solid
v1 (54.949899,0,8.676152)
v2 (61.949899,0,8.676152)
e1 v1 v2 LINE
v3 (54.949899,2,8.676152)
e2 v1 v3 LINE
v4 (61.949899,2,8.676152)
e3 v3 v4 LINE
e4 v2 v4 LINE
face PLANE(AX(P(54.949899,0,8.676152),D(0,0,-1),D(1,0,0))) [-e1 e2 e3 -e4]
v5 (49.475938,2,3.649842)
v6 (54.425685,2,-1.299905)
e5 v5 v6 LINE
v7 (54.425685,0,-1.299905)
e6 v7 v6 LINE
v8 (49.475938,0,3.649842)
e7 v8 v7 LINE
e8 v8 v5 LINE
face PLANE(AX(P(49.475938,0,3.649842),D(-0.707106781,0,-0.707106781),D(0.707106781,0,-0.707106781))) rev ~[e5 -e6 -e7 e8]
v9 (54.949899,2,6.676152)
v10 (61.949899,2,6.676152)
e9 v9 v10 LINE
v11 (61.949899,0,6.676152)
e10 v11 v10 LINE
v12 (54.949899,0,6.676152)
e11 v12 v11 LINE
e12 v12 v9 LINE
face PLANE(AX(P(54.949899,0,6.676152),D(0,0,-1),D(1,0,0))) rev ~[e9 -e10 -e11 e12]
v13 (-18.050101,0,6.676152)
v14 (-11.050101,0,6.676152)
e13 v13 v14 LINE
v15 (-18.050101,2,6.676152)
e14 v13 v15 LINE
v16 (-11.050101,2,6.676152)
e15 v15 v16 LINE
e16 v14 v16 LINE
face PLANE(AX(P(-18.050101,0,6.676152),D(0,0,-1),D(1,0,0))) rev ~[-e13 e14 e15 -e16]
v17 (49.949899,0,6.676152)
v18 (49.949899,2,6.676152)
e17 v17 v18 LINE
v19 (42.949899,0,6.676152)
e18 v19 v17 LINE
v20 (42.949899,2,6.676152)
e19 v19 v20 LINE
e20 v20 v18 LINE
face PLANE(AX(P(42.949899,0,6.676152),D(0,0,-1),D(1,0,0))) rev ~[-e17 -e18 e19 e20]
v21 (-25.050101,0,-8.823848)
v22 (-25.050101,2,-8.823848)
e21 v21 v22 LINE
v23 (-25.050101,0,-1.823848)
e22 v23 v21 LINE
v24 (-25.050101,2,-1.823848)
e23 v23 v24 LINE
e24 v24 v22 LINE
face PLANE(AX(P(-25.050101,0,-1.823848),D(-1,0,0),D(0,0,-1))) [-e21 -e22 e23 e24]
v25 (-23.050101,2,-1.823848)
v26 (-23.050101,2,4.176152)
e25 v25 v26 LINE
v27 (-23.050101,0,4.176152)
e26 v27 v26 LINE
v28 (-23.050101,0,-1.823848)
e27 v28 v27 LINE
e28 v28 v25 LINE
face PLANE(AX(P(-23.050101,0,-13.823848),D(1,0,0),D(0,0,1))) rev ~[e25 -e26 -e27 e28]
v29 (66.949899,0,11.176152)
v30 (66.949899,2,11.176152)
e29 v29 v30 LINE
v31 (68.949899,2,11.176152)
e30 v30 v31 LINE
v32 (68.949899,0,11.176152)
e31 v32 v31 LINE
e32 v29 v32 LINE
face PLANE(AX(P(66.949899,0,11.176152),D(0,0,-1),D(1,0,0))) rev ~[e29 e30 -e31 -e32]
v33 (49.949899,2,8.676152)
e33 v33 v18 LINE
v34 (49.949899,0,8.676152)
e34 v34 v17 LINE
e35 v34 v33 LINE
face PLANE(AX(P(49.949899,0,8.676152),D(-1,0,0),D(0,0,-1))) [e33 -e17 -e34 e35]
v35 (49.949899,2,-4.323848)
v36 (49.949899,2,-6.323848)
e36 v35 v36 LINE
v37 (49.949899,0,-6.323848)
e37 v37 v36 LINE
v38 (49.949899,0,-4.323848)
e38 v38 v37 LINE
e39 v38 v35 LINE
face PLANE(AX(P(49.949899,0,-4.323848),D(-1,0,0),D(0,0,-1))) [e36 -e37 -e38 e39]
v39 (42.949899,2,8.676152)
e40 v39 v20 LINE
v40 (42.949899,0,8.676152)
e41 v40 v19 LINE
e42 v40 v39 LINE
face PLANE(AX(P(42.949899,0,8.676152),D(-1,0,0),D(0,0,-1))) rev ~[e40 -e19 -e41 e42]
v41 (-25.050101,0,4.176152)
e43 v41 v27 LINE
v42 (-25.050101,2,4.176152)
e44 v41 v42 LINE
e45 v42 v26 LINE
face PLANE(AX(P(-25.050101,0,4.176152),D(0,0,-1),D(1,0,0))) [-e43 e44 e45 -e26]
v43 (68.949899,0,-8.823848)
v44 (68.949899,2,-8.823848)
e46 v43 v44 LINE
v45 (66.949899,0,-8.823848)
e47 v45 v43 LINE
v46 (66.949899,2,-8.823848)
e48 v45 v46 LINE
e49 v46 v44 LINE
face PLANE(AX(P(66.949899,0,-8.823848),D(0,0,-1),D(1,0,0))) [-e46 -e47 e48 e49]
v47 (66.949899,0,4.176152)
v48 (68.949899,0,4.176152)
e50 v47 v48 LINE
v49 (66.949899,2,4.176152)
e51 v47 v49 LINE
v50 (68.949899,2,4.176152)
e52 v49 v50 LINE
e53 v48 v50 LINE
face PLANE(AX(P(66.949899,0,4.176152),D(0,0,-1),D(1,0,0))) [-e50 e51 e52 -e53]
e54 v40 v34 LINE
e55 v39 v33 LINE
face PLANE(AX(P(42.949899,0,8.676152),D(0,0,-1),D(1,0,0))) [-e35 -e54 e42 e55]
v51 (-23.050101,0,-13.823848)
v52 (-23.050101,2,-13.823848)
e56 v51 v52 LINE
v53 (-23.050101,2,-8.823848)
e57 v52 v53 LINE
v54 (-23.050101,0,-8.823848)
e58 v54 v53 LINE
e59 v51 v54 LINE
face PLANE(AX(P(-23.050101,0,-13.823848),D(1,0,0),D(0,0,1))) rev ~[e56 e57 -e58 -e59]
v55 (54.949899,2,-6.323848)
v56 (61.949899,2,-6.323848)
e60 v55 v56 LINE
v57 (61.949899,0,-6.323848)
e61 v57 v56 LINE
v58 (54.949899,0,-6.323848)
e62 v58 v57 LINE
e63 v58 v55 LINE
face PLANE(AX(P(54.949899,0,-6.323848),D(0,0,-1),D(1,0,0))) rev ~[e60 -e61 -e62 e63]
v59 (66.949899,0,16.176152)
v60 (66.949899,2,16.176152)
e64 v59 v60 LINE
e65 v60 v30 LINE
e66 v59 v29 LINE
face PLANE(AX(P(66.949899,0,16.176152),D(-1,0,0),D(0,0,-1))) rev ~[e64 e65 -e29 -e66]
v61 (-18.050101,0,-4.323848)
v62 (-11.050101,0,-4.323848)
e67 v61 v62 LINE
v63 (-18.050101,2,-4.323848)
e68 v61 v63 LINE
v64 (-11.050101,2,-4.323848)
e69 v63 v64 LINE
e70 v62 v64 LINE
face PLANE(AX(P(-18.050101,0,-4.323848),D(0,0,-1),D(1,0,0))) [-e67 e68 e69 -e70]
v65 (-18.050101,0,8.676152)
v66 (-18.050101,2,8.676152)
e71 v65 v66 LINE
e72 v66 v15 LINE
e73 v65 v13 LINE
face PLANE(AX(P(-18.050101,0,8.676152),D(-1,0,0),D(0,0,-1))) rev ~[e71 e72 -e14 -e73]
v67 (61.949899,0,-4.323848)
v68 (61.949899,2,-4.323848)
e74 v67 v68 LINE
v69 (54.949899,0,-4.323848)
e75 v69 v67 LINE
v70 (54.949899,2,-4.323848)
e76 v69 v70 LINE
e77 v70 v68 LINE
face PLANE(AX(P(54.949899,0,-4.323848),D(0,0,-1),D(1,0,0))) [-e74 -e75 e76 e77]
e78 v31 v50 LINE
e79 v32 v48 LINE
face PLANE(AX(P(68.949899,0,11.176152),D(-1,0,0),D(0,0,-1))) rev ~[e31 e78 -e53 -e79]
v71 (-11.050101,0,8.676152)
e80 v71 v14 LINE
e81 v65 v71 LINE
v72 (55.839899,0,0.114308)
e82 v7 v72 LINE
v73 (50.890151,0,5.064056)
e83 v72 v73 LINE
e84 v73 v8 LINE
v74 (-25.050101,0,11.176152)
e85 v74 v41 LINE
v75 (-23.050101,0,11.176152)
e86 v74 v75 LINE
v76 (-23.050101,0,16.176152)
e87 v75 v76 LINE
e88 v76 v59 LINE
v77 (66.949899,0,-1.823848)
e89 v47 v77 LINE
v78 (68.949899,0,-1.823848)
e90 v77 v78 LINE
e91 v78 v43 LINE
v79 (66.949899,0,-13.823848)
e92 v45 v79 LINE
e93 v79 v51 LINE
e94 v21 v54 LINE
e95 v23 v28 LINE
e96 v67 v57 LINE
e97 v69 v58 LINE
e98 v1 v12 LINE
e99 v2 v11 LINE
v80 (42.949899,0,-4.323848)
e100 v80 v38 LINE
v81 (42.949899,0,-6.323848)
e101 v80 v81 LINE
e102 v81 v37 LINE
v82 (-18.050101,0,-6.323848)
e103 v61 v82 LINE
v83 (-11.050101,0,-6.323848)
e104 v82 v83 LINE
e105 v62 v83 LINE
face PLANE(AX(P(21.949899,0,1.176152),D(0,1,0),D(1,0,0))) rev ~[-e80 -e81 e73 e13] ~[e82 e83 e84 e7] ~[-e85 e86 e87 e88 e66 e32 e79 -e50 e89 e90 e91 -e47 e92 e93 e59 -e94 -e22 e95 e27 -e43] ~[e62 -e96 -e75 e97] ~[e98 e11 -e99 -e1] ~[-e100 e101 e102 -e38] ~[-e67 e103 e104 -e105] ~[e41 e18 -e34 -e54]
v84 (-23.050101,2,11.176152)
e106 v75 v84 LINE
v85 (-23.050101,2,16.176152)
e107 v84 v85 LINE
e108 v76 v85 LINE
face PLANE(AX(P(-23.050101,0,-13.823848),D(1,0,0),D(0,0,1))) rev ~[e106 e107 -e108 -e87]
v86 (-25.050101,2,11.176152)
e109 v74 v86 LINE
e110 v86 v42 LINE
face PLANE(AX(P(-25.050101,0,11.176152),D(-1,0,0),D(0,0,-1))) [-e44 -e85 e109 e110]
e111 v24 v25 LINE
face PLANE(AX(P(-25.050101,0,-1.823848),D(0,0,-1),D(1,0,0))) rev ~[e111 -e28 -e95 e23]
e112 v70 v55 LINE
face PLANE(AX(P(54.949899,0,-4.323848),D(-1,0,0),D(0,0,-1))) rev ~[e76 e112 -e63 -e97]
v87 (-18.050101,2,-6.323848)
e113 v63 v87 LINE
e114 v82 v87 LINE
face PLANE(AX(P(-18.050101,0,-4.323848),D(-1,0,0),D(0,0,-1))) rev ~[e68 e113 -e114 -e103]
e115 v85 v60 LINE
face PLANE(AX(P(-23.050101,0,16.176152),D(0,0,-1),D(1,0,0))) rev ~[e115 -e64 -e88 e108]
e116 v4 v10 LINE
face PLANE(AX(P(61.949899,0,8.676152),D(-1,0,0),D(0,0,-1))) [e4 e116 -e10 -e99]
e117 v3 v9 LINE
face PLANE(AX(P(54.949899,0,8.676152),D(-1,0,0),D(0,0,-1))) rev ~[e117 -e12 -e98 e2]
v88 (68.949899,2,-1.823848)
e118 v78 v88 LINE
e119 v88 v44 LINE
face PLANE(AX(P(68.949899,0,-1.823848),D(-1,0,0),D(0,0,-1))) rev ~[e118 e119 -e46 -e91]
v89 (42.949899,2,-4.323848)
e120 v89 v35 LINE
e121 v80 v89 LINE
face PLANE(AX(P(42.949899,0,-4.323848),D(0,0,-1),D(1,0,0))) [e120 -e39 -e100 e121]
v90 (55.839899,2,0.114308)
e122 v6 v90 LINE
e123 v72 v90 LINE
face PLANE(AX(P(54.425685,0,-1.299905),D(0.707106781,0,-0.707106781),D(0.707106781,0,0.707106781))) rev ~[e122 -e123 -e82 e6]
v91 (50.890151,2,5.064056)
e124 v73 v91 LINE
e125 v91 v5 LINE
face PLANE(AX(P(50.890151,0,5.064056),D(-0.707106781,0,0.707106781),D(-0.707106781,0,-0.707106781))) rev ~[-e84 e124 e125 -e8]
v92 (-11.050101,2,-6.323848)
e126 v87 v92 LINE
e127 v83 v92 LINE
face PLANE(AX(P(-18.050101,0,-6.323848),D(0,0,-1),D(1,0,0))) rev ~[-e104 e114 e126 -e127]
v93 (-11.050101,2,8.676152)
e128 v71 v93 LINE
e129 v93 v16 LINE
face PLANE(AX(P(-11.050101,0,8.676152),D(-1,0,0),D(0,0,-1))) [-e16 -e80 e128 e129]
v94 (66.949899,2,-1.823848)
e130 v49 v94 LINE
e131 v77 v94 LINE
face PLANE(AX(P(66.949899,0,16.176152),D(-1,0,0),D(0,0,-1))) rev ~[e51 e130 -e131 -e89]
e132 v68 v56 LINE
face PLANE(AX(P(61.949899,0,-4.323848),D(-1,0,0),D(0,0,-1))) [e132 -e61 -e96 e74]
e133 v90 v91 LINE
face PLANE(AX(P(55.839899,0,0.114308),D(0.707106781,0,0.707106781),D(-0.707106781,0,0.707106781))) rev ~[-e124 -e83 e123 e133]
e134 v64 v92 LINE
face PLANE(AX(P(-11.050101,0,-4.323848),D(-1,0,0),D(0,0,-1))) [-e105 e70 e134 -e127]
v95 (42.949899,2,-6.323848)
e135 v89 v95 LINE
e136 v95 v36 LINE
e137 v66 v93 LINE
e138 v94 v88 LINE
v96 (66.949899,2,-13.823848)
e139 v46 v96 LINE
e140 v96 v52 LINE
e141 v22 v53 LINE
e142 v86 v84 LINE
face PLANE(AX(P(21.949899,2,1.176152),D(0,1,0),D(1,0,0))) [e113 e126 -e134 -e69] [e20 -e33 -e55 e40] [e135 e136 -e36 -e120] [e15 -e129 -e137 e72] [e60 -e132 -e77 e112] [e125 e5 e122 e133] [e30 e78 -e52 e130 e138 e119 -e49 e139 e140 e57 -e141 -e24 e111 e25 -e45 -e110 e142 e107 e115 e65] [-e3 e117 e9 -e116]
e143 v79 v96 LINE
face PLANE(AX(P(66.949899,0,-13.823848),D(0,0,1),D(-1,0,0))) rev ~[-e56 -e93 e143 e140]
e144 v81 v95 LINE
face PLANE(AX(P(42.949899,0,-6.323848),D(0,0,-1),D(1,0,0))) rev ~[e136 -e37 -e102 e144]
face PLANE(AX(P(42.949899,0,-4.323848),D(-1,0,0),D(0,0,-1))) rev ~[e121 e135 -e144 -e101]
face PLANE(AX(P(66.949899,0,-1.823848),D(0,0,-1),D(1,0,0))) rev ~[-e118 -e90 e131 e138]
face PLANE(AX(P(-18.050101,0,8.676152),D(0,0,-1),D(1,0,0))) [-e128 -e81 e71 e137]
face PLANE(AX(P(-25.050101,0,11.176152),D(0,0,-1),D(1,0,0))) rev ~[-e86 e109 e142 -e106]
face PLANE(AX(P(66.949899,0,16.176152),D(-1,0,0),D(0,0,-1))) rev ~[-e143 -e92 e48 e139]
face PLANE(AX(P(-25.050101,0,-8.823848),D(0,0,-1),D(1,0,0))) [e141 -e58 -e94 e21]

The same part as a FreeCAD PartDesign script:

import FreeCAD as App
import Part
import Sketcher

V = App.Vector
Q = App.Units.Quantity


def add_polygon(sketch, points):
    """Adds a closed chain of lines whose ends are joined by coincident constraints."""
    first, n = sketch.GeometryCount, len(points)
    for a, b in zip(points, points[1:] + points[:1]):
        sketch.addGeometry(Part.LineSegment(App.Vector(*a, 0), App.Vector(*b, 0)), False)
    for i in range(n):
        sketch.addConstraint(Sketcher.Constraint("Coincident", first + i, 2, first + (i + 1) % n, 1))

doc = App.newDocument("Part")
body = doc.addObject("PartDesign::Body", "Body")

sketch1 = doc.addObject("Sketcher::SketchObject", "Sketch")
body.addObject(sketch1)
sketch1.AttachmentSupport = (doc.XZ_Plane, [""])
sketch1.MapMode = "FlatFace"
add_polygon(sketch1, [(-25.050101, -8.823848), (-25.050101, -1.823848), (-23.050101, -1.823848), (-23.050101, 4.176152), (-25.050101, 4.176152), (-25.050101, 11.176152), (-23.050101, 11.176152), (-23.050101, 16.176152), (66.949899, 16.176152), (66.949899, 11.176152), (68.949899, 11.176152), (68.949899, 4.176152), (66.949899, 4.176152), (66.949899, -1.823848), (68.949899, -1.823848), (68.949899, -8.823848), (66.949899, -8.823848), (66.949899, -13.823848), (-23.050101, -13.823848), (-23.050101, -8.823848)])
add_polygon(sketch1, [(54.949899, -4.323848), (54.949899, -6.323848), (61.949899, -6.323848), (61.949899, -4.323848)])
add_polygon(sketch1, [(-11.050101, 8.676152), (-18.050101, 8.676152), (-18.050101, 6.676152), (-11.050101, 6.676152)])
add_polygon(sketch1, [(49.949899, 8.676152), (42.949899, 8.676152), (42.949899, 6.676152), (49.949899, 6.676152)])
add_polygon(sketch1, [(61.949899, 8.676152), (54.949899, 8.676152), (54.949899, 6.676152), (61.949899, 6.676152)])
add_polygon(sketch1, [(49.475938, 3.649842), (54.425685, -1.299905), (55.839899, 0.114308), (50.890151, 5.064056)])
add_polygon(sketch1, [(-11.050101, -4.323848), (-18.050101, -4.323848), (-18.050101, -6.323848), (-11.050101, -6.323848)])
add_polygon(sketch1, [(49.949899, -4.323848), (42.949899, -4.323848), (42.949899, -6.323848), (49.949899, -6.323848)])
sketch1.addConstraint([
    Sketcher.Constraint("Vertical", 0),
    Sketcher.Constraint("Horizontal", 1),
    Sketcher.Constraint("Vertical", 2),
    Sketcher.Constraint("Horizontal", 3),
    Sketcher.Constraint("Vertical", 4),
    Sketcher.Constraint("Horizontal", 5),
    Sketcher.Constraint("Vertical", 6),
    Sketcher.Constraint("Horizontal", 7),
    Sketcher.Constraint("Vertical", 8),
    Sketcher.Constraint("Horizontal", 9),
    Sketcher.Constraint("Vertical", 10),
    Sketcher.Constraint("Horizontal", 11),
    Sketcher.Constraint("Vertical", 12),
    Sketcher.Constraint("Horizontal", 13),
    Sketcher.Constraint("Vertical", 14),
    Sketcher.Constraint("Horizontal", 15),
    Sketcher.Constraint("Vertical", 16),
    Sketcher.Constraint("Horizontal", 17),
    Sketcher.Constraint("Vertical", 18),
    Sketcher.Constraint("Horizontal", 19),
    Sketcher.Constraint("Vertical", 20),
    Sketcher.Constraint("Horizontal", 21),
    Sketcher.Constraint("Vertical", 22),
    Sketcher.Constraint("Horizontal", 23),
    Sketcher.Constraint("Horizontal", 24),
    Sketcher.Constraint("Vertical", 25),
    Sketcher.Constraint("Horizontal", 26),
    Sketcher.Constraint("Vertical", 27),
    Sketcher.Constraint("Horizontal", 28),
    Sketcher.Constraint("Vertical", 29),
    Sketcher.Constraint("Horizontal", 30),
    Sketcher.Constraint("Vertical", 31),
    Sketcher.Constraint("Horizontal", 32),
    Sketcher.Constraint("Vertical", 33),
    Sketcher.Constraint("Horizontal", 34),
    Sketcher.Constraint("Vertical", 35),
    Sketcher.Constraint("Horizontal", 40),
    Sketcher.Constraint("Vertical", 41),
    Sketcher.Constraint("Horizontal", 42),
    Sketcher.Constraint("Vertical", 43),
    Sketcher.Constraint("Horizontal", 44),
    Sketcher.Constraint("Vertical", 45),
    Sketcher.Constraint("Horizontal", 46),
    Sketcher.Constraint("Vertical", 47),
    Sketcher.Constraint("Perpendicular", 36, 37),
    Sketcher.Constraint("Perpendicular", 37, 38),
    Sketcher.Constraint("Perpendicular", 38, 39),
    Sketcher.Constraint("Horizontal", 5, 2, 8, 2),
    Sketcher.Constraint("Horizontal", 3, 2, 10, 2),
    Sketcher.Constraint("Horizontal", 1, 2, 12, 2),
    Sketcher.Constraint("Horizontal", 15, 2, 18, 2),
    Sketcher.Constraint("Horizontal", 27, 2, 28, 2),
    Sketcher.Constraint("Horizontal", 26, 2, 29, 2),
    Sketcher.Constraint("Horizontal", 31, 2, 32, 2),
    Sketcher.Constraint("Horizontal", 30, 2, 33, 2),
    Sketcher.Constraint("Horizontal", 23, 2, 40, 2),
    Sketcher.Constraint("Horizontal", 21, 2, 41, 2),
    Sketcher.Constraint("Horizontal", 43, 2, 44, 2),
    Sketcher.Constraint("Horizontal", 42, 2, 45, 2),
    Sketcher.Constraint("Vertical", 0, 2, 3, 2),
    Sketcher.Constraint("Vertical", 2, 2, 5, 2),
    Sketcher.Constraint("Vertical", 8, 2, 11, 2),
    Sketcher.Constraint("Vertical", 10, 2, 13, 2),
    Sketcher.Constraint("Vertical", 12, 2, 15, 2),
    Sketcher.Constraint("Vertical", 6, 2, 17, 2),
    Sketcher.Constraint("Vertical", 23, 2, 32, 2),
    Sketcher.Constraint("Vertical", 22, 2, 34, 2),
    Sketcher.Constraint("Vertical", 25, 2, 40, 2),
    Sketcher.Constraint("Vertical", 27, 2, 42, 2),
    Sketcher.Constraint("Vertical", 29, 2, 44, 2),
    Sketcher.Constraint("Vertical", 31, 2, 46, 2),
    Sketcher.Constraint("Equal", 5, 9),
    Sketcher.Constraint("Equal", 23, 24),
    Sketcher.Constraint("Equal", 26, 28),
    Sketcher.Constraint("Equal", 46, 0),
    Sketcher.Constraint("Equal", 0, 4),
    Sketcher.Constraint("Equal", 8, 16),
    Sketcher.Constraint("Equal", 19, 20),
    Sketcher.Constraint("Equal", 22, 25),
    Sketcher.Constraint("DistanceX", 1, 1, 1, 2, 2.0),
    Sketcher.Constraint("DistanceX", 7, 1, 7, 2, 90.0),
    Sketcher.Constraint("DistanceX", 21, 1, 21, 2, 7.0),
    Sketcher.Constraint("DistanceY", 2, 1, 2, 2, 6.0),
    Sketcher.Constraint("DistanceY", 6, 1, 6, 2, 5.0),
    Sketcher.Constraint("Angle", 36, Q("-45 deg")),
    Sketcher.Constraint("Distance", 36, 7.0),
    Sketcher.Constraint("Distance", 37, 2.0),
    Sketcher.Constraint("DistanceX", 20, 2, 15, 2, 12.0),
    Sketcher.Constraint("DistanceX", 5, 2, 24, 2, 5.0),
    Sketcher.Constraint("DistanceX", 28, 2, 23, 2, 12.0),
    Sketcher.Constraint("DistanceY", 23, 2, 28, 2, 13.0),
    Sketcher.Constraint("DistanceY", 15, 2, 20, 2, 2.5),
    Sketcher.Constraint("DistanceX", 23, 2, 37, 2, 0.89),
    Sketcher.Constraint("DistanceX", 0, 2, -1, 1, 25.050101),
    Sketcher.Constraint("DistanceY", 0, 2, -1, 1, 1.823848),
    Sketcher.Constraint("DistanceY", -1, 1, 37, 2, 0.114308),
])
pad1 = doc.addObject("PartDesign::Pad", "Pad")
body.addObject(pad1)
pad1.Profile = sketch1
pad1.Length = 2
pad1.Reversed = True

doc.recompute()
